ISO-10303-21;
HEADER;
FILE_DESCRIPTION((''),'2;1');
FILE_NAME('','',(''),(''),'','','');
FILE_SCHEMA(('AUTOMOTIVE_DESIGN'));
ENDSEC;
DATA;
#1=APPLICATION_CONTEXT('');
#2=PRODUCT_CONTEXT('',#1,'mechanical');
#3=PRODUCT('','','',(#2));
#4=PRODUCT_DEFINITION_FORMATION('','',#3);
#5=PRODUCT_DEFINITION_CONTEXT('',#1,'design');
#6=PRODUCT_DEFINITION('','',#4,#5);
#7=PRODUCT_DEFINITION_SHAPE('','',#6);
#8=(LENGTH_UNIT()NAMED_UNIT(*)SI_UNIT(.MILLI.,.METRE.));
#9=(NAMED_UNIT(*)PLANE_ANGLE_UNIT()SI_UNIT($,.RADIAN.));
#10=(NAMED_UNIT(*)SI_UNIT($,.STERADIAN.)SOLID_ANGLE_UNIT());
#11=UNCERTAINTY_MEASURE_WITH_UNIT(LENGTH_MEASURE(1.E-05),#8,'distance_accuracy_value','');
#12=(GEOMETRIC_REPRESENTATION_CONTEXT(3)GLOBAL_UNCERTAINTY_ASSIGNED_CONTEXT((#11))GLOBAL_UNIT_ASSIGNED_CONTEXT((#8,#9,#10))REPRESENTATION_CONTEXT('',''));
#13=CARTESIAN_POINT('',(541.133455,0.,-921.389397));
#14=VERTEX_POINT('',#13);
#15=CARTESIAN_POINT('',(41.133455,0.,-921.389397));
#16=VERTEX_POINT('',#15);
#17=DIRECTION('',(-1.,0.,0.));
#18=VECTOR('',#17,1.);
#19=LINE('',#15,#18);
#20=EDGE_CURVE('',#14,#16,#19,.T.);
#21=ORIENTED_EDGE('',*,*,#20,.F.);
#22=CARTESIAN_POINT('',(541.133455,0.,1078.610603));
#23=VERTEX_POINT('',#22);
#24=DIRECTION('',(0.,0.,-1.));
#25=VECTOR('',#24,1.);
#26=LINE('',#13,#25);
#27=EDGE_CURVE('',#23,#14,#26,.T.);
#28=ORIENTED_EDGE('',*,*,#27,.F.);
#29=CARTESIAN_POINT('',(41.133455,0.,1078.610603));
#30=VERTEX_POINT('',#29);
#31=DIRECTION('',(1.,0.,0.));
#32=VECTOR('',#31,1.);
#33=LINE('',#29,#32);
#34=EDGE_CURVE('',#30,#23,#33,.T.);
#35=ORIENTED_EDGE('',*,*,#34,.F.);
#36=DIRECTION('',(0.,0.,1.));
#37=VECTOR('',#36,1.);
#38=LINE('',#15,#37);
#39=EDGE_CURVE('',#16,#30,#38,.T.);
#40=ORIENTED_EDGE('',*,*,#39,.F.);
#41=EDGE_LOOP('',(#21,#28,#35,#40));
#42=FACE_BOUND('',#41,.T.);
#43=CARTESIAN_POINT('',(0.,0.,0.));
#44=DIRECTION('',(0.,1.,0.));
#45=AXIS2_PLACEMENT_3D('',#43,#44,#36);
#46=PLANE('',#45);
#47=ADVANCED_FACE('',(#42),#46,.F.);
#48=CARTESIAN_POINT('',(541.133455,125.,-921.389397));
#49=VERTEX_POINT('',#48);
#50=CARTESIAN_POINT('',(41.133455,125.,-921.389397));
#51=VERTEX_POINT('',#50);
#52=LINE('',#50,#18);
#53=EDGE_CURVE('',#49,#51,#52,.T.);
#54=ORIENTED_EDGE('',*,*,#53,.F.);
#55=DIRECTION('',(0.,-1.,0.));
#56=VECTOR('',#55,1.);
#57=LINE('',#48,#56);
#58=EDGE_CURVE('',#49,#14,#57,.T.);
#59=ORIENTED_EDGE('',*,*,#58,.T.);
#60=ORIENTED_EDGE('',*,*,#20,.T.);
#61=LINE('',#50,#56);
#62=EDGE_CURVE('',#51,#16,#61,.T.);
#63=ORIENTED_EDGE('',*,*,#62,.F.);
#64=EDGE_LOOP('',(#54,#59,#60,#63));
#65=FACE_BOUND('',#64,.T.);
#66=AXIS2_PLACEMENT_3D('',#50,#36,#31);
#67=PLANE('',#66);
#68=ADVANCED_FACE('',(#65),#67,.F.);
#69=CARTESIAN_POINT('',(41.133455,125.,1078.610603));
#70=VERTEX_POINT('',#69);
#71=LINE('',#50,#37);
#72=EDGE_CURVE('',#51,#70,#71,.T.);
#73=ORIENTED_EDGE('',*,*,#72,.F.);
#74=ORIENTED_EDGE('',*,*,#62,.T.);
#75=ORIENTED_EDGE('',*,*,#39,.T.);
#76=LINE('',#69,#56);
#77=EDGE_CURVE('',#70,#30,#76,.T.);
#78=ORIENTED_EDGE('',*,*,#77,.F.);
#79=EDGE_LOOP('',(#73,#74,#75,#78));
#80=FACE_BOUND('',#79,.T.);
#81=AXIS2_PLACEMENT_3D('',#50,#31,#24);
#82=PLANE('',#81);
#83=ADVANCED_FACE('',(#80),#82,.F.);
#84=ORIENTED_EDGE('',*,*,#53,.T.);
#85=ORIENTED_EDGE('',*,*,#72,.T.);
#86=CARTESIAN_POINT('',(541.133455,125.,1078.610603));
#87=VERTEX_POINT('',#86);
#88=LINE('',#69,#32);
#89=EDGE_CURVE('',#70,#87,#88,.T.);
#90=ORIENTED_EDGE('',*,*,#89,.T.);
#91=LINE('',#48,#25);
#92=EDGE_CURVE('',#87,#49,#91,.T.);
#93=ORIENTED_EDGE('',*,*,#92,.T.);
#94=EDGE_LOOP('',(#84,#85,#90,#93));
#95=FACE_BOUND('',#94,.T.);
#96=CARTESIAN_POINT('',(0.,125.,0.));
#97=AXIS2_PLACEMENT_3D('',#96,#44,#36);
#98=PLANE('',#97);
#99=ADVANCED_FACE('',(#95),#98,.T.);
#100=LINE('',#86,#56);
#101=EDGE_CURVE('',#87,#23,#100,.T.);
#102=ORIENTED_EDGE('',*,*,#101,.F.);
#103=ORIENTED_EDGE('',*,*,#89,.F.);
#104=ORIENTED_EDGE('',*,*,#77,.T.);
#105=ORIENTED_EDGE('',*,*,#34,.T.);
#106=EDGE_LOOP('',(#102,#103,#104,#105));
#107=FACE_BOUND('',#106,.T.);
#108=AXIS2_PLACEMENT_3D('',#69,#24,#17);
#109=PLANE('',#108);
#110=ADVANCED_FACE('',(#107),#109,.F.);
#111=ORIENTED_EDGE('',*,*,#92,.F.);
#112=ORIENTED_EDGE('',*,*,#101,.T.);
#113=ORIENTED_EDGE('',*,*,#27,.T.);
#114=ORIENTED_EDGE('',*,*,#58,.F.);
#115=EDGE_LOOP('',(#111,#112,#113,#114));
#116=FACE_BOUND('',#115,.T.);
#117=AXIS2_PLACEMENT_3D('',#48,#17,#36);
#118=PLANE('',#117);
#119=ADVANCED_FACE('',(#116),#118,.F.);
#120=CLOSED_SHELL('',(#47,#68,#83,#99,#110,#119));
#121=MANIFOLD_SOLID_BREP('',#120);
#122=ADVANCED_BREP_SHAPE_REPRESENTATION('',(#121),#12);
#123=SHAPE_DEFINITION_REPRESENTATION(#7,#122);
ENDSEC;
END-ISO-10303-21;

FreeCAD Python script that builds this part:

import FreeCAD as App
import Part
import Sketcher

V = App.Vector


def add_polygon(sketch, points):
    """Adds a closed chain of lines whose ends are joined by coincident constraints."""
    first, n = sketch.GeometryCount, len(points)
    for a, b in zip(points, points[1:] + points[:1]):
        sketch.addGeometry(Part.LineSegment(App.Vector(*a, 0), App.Vector(*b, 0)), False)
    for i in range(n):
        sketch.addConstraint(Sketcher.Constraint("Coincident", first + i, 2, first + (i + 1) % n, 1))

doc = App.newDocument("Part")
body = doc.addObject("PartDesign::Body", "Body")

# Sketch on XZ plane
sketch1 = doc.addObject("Sketcher::SketchObject", "Sketch")
body.addObject(sketch1)
sketch1.AttachmentSupport = (doc.XZ_Plane, [""])
sketch1.MapMode = "FlatFace"
add_polygon(sketch1, [(41, -921), (41, 1079), (541, 1079), (541, -921)])  # lines 0-3
sketch1.addConstraint([
    Sketcher.Constraint("Vertical", 0),
    Sketcher.Constraint("Horizontal", 1),
    Sketcher.Constraint("Vertical", 2),
    Sketcher.Constraint("Horizontal", 3),
    Sketcher.Constraint("DistanceX", 1, 1, 1, 2, 500.0),
    Sketcher.Constraint("DistanceY", 0, 1, 0, 2, 2000.0),
    Sketcher.Constraint("DistanceX", -1, 1, 0, 2, 41.133455),
    Sketcher.Constraint("DistanceY", -1, 1, 0, 2, 1078.610603),
])
pad1 = doc.addObject("PartDesign::Pad", "Pad")
body.addObject(pad1)
pad1.Profile = sketch1
pad1.Length = 125
pad1.Reversed = True

doc.recompute()
